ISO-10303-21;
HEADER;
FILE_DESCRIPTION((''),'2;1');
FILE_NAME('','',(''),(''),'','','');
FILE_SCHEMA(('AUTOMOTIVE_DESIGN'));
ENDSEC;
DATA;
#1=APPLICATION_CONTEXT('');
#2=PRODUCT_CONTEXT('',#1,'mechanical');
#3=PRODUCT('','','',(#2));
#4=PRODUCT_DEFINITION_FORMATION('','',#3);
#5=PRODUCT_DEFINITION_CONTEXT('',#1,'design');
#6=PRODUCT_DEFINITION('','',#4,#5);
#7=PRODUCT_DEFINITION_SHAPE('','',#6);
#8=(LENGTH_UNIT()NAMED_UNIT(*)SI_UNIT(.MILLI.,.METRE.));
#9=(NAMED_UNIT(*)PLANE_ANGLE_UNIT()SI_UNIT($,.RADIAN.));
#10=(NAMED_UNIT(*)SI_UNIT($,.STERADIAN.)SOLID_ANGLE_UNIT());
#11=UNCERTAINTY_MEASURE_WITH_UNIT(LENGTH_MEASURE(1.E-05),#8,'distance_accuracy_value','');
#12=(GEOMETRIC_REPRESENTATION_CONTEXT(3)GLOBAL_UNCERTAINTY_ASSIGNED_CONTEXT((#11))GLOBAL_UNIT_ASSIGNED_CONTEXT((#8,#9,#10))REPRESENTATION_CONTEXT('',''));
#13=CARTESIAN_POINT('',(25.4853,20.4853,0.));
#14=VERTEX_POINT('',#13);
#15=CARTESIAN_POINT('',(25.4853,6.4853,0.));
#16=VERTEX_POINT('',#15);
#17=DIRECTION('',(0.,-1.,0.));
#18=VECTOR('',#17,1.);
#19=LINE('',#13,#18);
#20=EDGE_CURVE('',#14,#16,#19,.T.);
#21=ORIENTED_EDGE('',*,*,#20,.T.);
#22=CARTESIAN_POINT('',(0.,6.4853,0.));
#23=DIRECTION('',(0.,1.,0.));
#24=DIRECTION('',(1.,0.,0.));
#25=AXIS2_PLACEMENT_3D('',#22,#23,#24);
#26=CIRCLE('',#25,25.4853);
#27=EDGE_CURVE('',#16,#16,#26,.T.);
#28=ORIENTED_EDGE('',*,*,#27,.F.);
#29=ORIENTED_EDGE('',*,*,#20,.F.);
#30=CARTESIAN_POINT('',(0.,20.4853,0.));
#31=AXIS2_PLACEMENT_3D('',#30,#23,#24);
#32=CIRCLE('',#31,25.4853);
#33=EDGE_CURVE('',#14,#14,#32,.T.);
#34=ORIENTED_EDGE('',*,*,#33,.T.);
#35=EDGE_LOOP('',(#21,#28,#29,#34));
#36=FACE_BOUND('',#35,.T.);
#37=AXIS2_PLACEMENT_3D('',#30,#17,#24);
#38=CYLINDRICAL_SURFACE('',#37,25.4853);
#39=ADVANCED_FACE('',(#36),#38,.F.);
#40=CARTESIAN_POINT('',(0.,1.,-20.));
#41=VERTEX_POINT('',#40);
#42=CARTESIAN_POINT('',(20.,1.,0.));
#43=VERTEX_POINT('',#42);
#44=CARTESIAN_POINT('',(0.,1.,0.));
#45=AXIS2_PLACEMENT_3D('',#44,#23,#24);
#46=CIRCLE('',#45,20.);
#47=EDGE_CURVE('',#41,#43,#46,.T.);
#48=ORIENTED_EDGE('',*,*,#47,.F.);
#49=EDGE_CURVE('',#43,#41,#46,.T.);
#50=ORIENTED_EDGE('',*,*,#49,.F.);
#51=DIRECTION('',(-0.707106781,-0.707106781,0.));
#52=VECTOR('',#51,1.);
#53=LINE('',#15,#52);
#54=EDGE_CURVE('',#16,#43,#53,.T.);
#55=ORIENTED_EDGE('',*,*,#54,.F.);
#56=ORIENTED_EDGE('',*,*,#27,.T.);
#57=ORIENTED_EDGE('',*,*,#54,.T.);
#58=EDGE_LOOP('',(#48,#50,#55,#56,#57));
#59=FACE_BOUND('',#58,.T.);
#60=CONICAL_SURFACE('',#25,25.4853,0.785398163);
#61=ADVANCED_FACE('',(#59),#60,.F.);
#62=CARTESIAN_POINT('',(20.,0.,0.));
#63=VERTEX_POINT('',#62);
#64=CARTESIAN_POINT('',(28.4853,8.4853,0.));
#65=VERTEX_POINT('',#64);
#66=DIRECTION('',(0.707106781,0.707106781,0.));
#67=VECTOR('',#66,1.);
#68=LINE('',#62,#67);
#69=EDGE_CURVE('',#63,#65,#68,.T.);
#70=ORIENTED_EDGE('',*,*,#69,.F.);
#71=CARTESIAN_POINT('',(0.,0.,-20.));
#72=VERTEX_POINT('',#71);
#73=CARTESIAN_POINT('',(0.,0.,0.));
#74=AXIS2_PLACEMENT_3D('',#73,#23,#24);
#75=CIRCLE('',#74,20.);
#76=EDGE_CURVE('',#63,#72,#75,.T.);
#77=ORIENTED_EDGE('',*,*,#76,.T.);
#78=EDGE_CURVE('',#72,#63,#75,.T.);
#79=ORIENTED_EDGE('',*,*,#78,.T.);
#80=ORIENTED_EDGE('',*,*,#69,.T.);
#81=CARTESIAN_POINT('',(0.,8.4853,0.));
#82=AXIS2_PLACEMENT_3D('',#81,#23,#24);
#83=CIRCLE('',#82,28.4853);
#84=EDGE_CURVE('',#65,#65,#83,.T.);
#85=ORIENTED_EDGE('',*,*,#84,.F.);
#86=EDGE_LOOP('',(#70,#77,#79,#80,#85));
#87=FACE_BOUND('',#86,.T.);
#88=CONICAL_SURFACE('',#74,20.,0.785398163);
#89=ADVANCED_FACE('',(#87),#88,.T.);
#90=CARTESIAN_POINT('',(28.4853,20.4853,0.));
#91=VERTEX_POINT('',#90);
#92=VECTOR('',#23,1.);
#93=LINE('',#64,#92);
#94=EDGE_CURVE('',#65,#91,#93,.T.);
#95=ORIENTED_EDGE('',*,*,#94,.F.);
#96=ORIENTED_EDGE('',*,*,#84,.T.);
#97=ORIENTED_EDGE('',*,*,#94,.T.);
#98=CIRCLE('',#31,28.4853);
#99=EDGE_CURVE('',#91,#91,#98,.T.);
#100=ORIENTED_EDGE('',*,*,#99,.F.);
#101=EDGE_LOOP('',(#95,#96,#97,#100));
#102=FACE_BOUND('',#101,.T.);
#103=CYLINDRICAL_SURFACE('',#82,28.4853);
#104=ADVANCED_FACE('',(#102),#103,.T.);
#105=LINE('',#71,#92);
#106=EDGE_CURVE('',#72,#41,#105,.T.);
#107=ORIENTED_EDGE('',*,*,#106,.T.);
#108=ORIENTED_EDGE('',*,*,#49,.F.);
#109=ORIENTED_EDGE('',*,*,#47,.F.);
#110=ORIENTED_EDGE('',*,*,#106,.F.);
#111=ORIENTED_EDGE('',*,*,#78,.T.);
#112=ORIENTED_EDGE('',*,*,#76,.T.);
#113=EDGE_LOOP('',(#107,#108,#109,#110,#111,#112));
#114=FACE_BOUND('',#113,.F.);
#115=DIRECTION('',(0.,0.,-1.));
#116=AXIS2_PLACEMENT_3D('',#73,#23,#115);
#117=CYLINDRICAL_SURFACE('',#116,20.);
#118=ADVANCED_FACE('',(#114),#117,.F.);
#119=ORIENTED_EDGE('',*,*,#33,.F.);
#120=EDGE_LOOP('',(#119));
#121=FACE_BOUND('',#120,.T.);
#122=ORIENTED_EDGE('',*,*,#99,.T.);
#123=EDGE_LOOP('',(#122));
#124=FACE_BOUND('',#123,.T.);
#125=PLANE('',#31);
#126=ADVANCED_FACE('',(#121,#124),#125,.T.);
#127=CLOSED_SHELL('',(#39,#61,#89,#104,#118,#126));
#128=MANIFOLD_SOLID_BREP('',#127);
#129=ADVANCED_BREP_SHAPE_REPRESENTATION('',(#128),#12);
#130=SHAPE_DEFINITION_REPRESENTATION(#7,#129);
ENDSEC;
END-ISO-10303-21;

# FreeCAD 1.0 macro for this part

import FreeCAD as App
import Part
import Sketcher

V = App.Vector


def add_polygon(sketch, points):
    """Adds a closed chain of lines whose ends are joined by coincident constraints."""
    first, n = sketch.GeometryCount, len(points)
    for a, b in zip(points, points[1:] + points[:1]):
        sketch.addGeometry(Part.LineSegment(App.Vector(*a, 0), App.Vector(*b, 0)), False)
    for i in range(n):
        sketch.addConstraint(Sketcher.Constraint("Coincident", first + i, 2, first + (i + 1) % n, 1))

doc = App.newDocument("Part")
params = doc.addObject("Spreadsheet::Sheet", "Params")
for row, (alias, value) in enumerate([
    ("sketch1_width", "20 mm"),
    ("sketch1_width2", "3 mm"),
    ("sketch1_height", "12 mm"),
    ("sketch1_height2", "14 mm"),
    ("sketch1_length", "12 mm"),
    ("revolution_angle", "360 deg"),
    ("sketch2_diameter", "40 mm"),
    ("hole_diameter", "40 mm"),
], start=1):
    params.set(f"A{row}", alias)
    params.set(f"B{row}", "=" + value)
    params.setAlias(f"B{row}", alias)

body = doc.addObject("PartDesign::Body", "Body")

# Sketch on XY plane
sketch1 = doc.addObject("Sketcher::SketchObject", "Sketch")
body.addObject(sketch1)
sketch1.AttachmentSupport = (doc.XY_Plane, [""])
sketch1.MapMode = "FlatFace"
add_polygon(sketch1, [(25.5, 6.5), (20, 1), (0, 1), (0, 0), (20, 0), (28.5, 8.5), (28.5, 20.5), (25.5, 20.5)])  # lines 0-7
sketch1.addConstraint(Sketcher.Constraint("Horizontal", 1))
sketch1.addConstraint(Sketcher.Constraint("Vertical", 2))
sketch1.addConstraint(Sketcher.Constraint("Horizontal", 3))
sketch1.addConstraint(Sketcher.Constraint("Vertical", 5))
sketch1.addConstraint(Sketcher.Constraint("Horizontal", 6))
sketch1.addConstraint(Sketcher.Constraint("Vertical", 7))
sketch1.addConstraint(Sketcher.Constraint("Coincident", 2, 2, -1, 1))
sketch1.addConstraint(Sketcher.Constraint("Parallel", 0, 4))
sketch1.addConstraint(Sketcher.Constraint("Vertical", 0, 2, 3, 2))
sketch1.addConstraint(Sketcher.Constraint("DistanceX", 1, 2, 1, 1, 20.0))
sketch1.addConstraint(Sketcher.Constraint("DistanceX", 6, 2, 6, 1, 3.0))
sketch1.addConstraint(Sketcher.Constraint("DistanceY", 5, 1, 5, 2, 12.0))
sketch1.addConstraint(Sketcher.Constraint("DistanceY", 7, 2, 7, 1, 14.0))
sketch1.addConstraint(Sketcher.Constraint("Distance", 4, 12.0))
sketch1.addConstraint(Sketcher.Constraint("DistanceY", 2, 2, 2, 1, 1.0))
sketch1.setExpression("Constraints[17]", "Params.sketch1_width")
sketch1.setExpression("Constraints[18]", "Params.sketch1_width2")
sketch1.setExpression("Constraints[19]", "Params.sketch1_height")
sketch1.setExpression("Constraints[20]", "Params.sketch1_height2")
sketch1.setExpression("Constraints[21]", "Params.sketch1_length")
revolution = doc.addObject("PartDesign::Revolution", "Revolution")
body.addObject(revolution)
revolution.Profile = sketch1
revolution.ReferenceAxis = (sketch1, ["V_Axis"])
revolution.setExpression("Angle", "Params.revolution_angle")

# Sketch on XZ plane
sketch2 = doc.addObject("Sketcher::SketchObject", "Sketch001")
body.addObject(sketch2)
sketch2.AttachmentSupport = (doc.XZ_Plane, [""])
sketch2.MapMode = "FlatFace"
sketch2.addGeometry(Part.Circle(V(0, 0, 0), V(0, 0, 1), 20), False)
sketch2.addConstraint(Sketcher.Constraint("Coincident", 0, 3, -1, 1))
sketch2.addConstraint(Sketcher.Constraint("Diameter", 0, 40.0))
sketch2.setExpression("Constraints[1]", "Params.sketch2_diameter")
doc.recompute()
hole = doc.addObject("PartDesign::Hole", "Hole")
body.addObject(hole)
hole.Profile = sketch2
hole.ThreadType = "None"
hole.setExpression("Diameter", "Params.hole_diameter")
hole.DepthType = "ThroughAll"

doc.recompute()
